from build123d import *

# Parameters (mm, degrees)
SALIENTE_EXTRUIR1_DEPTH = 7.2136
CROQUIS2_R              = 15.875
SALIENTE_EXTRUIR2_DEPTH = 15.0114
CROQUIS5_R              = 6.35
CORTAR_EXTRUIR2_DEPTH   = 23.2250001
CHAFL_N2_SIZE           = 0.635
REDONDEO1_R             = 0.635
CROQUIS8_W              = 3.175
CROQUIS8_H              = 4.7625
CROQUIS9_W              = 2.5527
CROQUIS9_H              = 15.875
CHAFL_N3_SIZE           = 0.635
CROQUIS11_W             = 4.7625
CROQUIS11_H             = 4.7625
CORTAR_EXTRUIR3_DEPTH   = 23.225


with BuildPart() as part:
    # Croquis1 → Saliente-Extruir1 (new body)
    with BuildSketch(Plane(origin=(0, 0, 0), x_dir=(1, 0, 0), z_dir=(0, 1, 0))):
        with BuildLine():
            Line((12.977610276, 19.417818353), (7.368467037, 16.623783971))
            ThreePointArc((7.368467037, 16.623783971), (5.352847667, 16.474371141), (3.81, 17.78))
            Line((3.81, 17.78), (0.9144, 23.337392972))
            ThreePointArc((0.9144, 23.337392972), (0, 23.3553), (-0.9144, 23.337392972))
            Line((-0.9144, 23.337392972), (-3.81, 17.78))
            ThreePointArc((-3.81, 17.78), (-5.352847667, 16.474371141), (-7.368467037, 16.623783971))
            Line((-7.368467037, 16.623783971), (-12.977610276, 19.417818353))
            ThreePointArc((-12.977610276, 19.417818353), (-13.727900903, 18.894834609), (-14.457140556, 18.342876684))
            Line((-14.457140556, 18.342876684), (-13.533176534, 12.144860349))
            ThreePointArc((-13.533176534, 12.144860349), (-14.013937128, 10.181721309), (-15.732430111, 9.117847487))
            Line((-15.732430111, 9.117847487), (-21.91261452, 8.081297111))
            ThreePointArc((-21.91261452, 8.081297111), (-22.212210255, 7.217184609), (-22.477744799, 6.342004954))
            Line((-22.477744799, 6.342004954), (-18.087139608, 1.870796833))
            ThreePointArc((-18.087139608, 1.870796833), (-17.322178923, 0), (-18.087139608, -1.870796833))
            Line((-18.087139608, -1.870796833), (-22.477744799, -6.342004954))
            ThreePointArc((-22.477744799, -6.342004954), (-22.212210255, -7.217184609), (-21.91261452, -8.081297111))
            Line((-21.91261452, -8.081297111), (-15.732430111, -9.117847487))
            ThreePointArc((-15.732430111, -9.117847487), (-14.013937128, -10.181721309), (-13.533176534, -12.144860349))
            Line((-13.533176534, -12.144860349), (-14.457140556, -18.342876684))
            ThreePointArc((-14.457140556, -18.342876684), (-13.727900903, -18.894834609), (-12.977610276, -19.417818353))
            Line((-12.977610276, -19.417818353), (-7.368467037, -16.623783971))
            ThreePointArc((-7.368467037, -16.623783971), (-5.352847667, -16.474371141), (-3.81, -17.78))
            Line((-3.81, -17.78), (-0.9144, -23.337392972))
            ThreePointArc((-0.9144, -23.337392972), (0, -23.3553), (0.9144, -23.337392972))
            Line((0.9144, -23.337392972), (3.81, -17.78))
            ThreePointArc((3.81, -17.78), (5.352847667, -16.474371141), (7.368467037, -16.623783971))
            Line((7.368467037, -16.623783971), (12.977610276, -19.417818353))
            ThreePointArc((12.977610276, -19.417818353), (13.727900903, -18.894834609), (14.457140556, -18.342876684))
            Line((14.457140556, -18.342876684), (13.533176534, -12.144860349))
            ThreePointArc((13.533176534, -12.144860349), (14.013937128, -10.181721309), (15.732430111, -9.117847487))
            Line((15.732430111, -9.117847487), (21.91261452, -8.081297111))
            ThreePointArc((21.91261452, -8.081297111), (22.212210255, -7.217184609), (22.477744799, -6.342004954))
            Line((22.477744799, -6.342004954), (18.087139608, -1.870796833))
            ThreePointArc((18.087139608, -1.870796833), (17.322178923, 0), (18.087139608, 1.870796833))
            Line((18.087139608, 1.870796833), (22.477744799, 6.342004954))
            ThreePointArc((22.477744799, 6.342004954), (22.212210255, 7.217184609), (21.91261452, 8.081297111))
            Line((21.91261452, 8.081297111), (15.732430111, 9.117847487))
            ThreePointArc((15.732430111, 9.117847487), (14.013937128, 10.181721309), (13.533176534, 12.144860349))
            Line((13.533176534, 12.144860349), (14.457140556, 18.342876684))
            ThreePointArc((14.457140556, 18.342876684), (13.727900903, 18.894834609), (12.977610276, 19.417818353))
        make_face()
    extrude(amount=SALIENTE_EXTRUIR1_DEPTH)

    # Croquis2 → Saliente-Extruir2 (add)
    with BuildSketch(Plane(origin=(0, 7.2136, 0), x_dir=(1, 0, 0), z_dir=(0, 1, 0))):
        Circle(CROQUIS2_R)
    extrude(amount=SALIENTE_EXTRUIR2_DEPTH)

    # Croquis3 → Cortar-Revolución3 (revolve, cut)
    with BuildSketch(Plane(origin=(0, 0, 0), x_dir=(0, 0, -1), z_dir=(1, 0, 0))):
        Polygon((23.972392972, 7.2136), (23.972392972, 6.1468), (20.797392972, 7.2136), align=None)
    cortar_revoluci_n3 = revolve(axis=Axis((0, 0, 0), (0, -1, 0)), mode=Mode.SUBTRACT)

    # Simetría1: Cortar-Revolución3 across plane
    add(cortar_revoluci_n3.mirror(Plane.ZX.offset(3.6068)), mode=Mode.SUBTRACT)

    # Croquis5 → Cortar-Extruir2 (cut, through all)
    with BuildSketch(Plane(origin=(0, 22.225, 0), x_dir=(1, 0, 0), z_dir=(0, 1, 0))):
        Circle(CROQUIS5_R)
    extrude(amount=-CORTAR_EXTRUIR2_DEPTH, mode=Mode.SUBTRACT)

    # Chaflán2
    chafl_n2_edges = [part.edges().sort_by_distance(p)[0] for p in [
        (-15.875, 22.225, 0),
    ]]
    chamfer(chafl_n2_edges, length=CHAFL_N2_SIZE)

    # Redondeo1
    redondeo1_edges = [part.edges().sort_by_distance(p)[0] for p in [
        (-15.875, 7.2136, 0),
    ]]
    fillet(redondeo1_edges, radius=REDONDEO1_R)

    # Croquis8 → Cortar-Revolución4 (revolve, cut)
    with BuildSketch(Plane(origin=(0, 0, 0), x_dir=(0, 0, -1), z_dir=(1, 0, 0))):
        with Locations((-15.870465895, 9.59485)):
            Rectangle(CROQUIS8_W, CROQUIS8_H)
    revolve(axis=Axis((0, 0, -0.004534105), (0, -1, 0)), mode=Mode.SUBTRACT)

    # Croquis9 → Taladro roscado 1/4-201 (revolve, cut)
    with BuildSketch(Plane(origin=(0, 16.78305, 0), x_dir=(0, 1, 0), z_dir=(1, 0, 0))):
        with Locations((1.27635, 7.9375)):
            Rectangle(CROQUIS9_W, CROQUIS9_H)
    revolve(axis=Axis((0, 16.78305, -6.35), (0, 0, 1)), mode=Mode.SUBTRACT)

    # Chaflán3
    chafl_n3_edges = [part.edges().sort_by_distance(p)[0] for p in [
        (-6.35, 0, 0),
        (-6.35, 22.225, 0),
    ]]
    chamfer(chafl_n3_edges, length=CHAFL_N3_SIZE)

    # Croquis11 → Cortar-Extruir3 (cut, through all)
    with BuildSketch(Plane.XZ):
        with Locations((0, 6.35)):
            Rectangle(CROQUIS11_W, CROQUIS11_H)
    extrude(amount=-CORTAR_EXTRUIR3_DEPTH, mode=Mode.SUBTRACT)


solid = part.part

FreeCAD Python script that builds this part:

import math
import FreeCAD as App
import Part
import Sketcher

V = App.Vector
Q = App.Units.Quantity


def edges_at(feature, points):
    """Names of the edges that pass closest to the given points."""
    edges = feature.Shape.Edges
    near = lambda p: min(range(len(edges)), key=lambda i: edges[i].distToShape(Part.Vertex(*p))[0])
    return sorted({f"Edge{near(p) + 1}" for p in points})


def add_polygon(sketch, points):
    """Adds a closed chain of lines whose ends are joined by coincident constraints."""
    first, n = sketch.GeometryCount, len(points)
    for a, b in zip(points, points[1:] + points[:1]):
        sketch.addGeometry(Part.LineSegment(App.Vector(*a, 0), App.Vector(*b, 0)), False)
    for i in range(n):
        sketch.addConstraint(Sketcher.Constraint("Coincident", first + i, 2, first + (i + 1) % n, 1))

doc = App.newDocument("Part")
body = doc.addObject("PartDesign::Body", "Body")

sketch1 = body.newObject("Sketcher::SketchObject", "Sketch")
sketch1.AttachmentSupport = (doc.getObject("XZ_Plane"), [""])
sketch1.MapMode = "FlatFace"
sketch1.addGeometry([
    Part.LineSegment(V(13, -19.4, 0), V(7.4, -16.6, 0)),
    Part.ArcOfCircle(Part.Circle(V(6.2, -19, 0), V(0, 0, 1), 2.7), math.radians(64), math.radians(152)),
    Part.LineSegment(V(3.8, -17.8, 0), V(0.9, -23.3, 0)),
    Part.ArcOfCircle(Part.Circle(V(0, 0, 0), V(0, 0, 1), 23.4), math.radians(-92.24), math.radians(-87.76)),
    Part.LineSegment(V(-0.9, -23.3, 0), V(-3.8, -17.8, 0)),
    Part.ArcOfCircle(Part.Circle(V(-6.2, -19, 0), V(0, 0, 1), 2.7), math.radians(28), math.radians(116)),
    Part.LineSegment(V(-7.4, -16.6, 0), V(-13, -19.4, 0)),
    Part.ArcOfCircle(Part.Circle(V(0, 0, 0), V(0, 0, 1), 23.4), math.radians(-128.24), math.radians(-123.76)),
    Part.LineSegment(V(-14.5, -18.3, 0), V(-13.5, -12.1, 0)),
    Part.ArcOfCircle(Part.Circle(V(-16.2, -11.8, 0), V(0, 0, 1), 2.7), math.radians(-8), math.radians(80)),
    Part.LineSegment(V(-15.7, -9.1, 0), V(-21.9, -8.1, 0)),
    Part.ArcOfCircle(Part.Circle(V(0, 0, 0), V(0, 0, 1), 23.4), math.radians(-164.24), math.radians(-159.76)),
    Part.LineSegment(V(-22.5, -6.3, 0), V(-18.1, -1.9, 0)),
    Part.ArcOfCircle(Part.Circle(V(-20, 0, 0), V(0, 0, 1), 2.7), math.radians(-44), math.radians(44)),
    Part.LineSegment(V(-18.1, 1.9, 0), V(-22.5, 6.3, 0)),
    Part.ArcOfCircle(Part.Circle(V(0, 0, 0), V(0, 0, 1), 23.4), math.radians(159.76), math.radians(164.24)),
    Part.LineSegment(V(-21.9, 8.1, 0), V(-15.7, 9.1, 0)),
    Part.ArcOfCircle(Part.Circle(V(-16.2, 11.8, 0), V(0, 0, 1), 2.7), math.radians(-80), math.radians(8)),
    Part.LineSegment(V(-13.5, 12.1, 0), V(-14.5, 18.3, 0)),
    Part.ArcOfCircle(Part.Circle(V(0, 0, 0), V(0, 0, 1), 23.4), math.radians(123.76), math.radians(128.24)),
    Part.LineSegment(V(-13, 19.4, 0), V(-7.4, 16.6, 0)),
    Part.ArcOfCircle(Part.Circle(V(-6.2, 19, 0), V(0, 0, 1), 2.7), math.radians(-116), math.radians(-28)),
    Part.LineSegment(V(-3.8, 17.8, 0), V(-0.9, 23.3, 0)),
    Part.ArcOfCircle(Part.Circle(V(0, 0, 0), V(0, 0, 1), 23.4), math.radians(87.76), math.radians(92.24)),
    Part.LineSegment(V(0.9, 23.3, 0), V(3.8, 17.8, 0)),
    Part.ArcOfCircle(Part.Circle(V(6.2, 19, 0), V(0, 0, 1), 2.7), math.radians(-152), math.radians(-64)),
    Part.LineSegment(V(7.4, 16.6, 0), V(13, 19.4, 0)),
    Part.ArcOfCircle(Part.Circle(V(0, 0, 0), V(0, 0, 1), 23.4), math.radians(51.76), math.radians(56.24)),
    Part.LineSegment(V(14.5, 18.3, 0), V(13.5, 12.1, 0)),
    Part.ArcOfCircle(Part.Circle(V(16.2, 11.8, 0), V(0, 0, 1), 2.7), math.radians(172), math.radians(260)),
    Part.LineSegment(V(15.7, 9.1, 0), V(21.9, 8.1, 0)),
    Part.ArcOfCircle(Part.Circle(V(0, 0, 0), V(0, 0, 1), 23.4), math.radians(15.76), math.radians(20.24)),
    Part.LineSegment(V(22.5, 6.3, 0), V(18.1, 1.9, 0)),
    Part.ArcOfCircle(Part.Circle(V(20, 0, 0), V(0, 0, 1), 2.7), math.radians(136), math.radians(224)),
    Part.LineSegment(V(18.1, -1.9, 0), V(22.5, -6.3, 0)),
    Part.ArcOfCircle(Part.Circle(V(0, 0, 0), V(0, 0, 1), 23.4), math.radians(-20.24), math.radians(-15.76)),
    Part.LineSegment(V(21.9, -8.1, 0), V(15.7, -9.1, 0)),
    Part.ArcOfCircle(Part.Circle(V(16.2, -11.8, 0), V(0, 0, 1), 2.7), math.radians(100), math.radians(188)),
    Part.LineSegment(V(13.5, -12.1, 0), V(14.5, -18.3, 0)),
    Part.ArcOfCircle(Part.Circle(V(0, 0, 0), V(0, 0, 1), 23.4), math.radians(-56.24), math.radians(-51.76)),
], False)
sketch1.addConstraint([
    Sketcher.Constraint("Tangent", 0, 2, 1, 1),
    Sketcher.Constraint("Tangent", 1, 2, 2, 1),
    Sketcher.Constraint("Coincident", 2, 2, 3, 2),
    Sketcher.Constraint("Coincident", 3, 1, 4, 1),
    Sketcher.Constraint("Tangent", 4, 2, 5, 1),
    Sketcher.Constraint("Tangent", 5, 2, 6, 1),
    Sketcher.Constraint("Coincident", 6, 2, 7, 2),
    Sketcher.Constraint("Coincident", 7, 1, 8, 1),
    Sketcher.Constraint("Tangent", 8, 2, 9, 1),
    Sketcher.Constraint("Tangent", 9, 2, 10, 1),
    Sketcher.Constraint("Coincident", 10, 2, 11, 2),
    Sketcher.Constraint("Coincident", 11, 1, 12, 1),
    Sketcher.Constraint("Tangent", 12, 2, 13, 1),
    Sketcher.Constraint("Tangent", 13, 2, 14, 1),
    Sketcher.Constraint("Coincident", 14, 2, 15, 2),
    Sketcher.Constraint("Coincident", 15, 1, 16, 1),
    Sketcher.Constraint("Tangent", 16, 2, 17, 1),
    Sketcher.Constraint("Tangent", 17, 2, 18, 1),
    Sketcher.Constraint("Coincident", 18, 2, 19, 2),
    Sketcher.Constraint("Coincident", 19, 1, 20, 1),
    Sketcher.Constraint("Tangent", 20, 2, 21, 1),
    Sketcher.Constraint("Tangent", 21, 2, 22, 1),
    Sketcher.Constraint("Coincident", 22, 2, 23, 2),
    Sketcher.Constraint("Coincident", 23, 1, 24, 1),
    Sketcher.Constraint("Tangent", 24, 2, 25, 1),
    Sketcher.Constraint("Tangent", 25, 2, 26, 1),
    Sketcher.Constraint("Coincident", 26, 2, 27, 2),
    Sketcher.Constraint("Coincident", 27, 1, 28, 1),
    Sketcher.Constraint("Tangent", 28, 2, 29, 1),
    Sketcher.Constraint("Tangent", 29, 2, 30, 1),
    Sketcher.Constraint("Coincident", 30, 2, 31, 2),
    Sketcher.Constraint("Coincident", 31, 1, 32, 1),
    Sketcher.Constraint("Tangent", 32, 2, 33, 1),
    Sketcher.Constraint("Tangent", 33, 2, 34, 1),
    Sketcher.Constraint("Coincident", 34, 2, 35, 2),
    Sketcher.Constraint("Coincident", 35, 1, 36, 1),
    Sketcher.Constraint("Tangent", 36, 2, 37, 1),
    Sketcher.Constraint("Tangent", 37, 2, 38, 1),
    Sketcher.Constraint("Coincident", 38, 2, 39, 2),
    Sketcher.Constraint("Coincident", 39, 1, 0, 1),
    Sketcher.Constraint("Coincident", 3, 3, -1, 1),
    Sketcher.Constraint("Coincident", 7, 3, -1, 1),
    Sketcher.Constraint("Coincident", 11, 3, -1, 1),
    Sketcher.Constraint("Coincident", 15, 3, -1, 1),
    Sketcher.Constraint("Coincident", 19, 3, -1, 1),
    Sketcher.Constraint("Coincident", 23, 3, -1, 1),
    Sketcher.Constraint("Coincident", 27, 3, -1, 1),
    Sketcher.Constraint("Coincident", 31, 3, -1, 1),
    Sketcher.Constraint("Coincident", 35, 3, -1, 1),
    Sketcher.Constraint("Coincident", 39, 3, -1, 1),
    Sketcher.Constraint("Equal", 1, 5),
    Sketcher.Constraint("Equal", 3, 7),
    Sketcher.Constraint("Equal", 5, 9),
    Sketcher.Constraint("Equal", 7, 11),
    Sketcher.Constraint("Equal", 9, 13),
    Sketcher.Constraint("Equal", 11, 15),
    Sketcher.Constraint("Equal", 13, 17),
    Sketcher.Constraint("Equal", 15, 19),
    Sketcher.Constraint("Equal", 17, 21),
    Sketcher.Constraint("Equal", 19, 23),
    Sketcher.Constraint("Equal", 21, 25),
    Sketcher.Constraint("Equal", 23, 27),
    Sketcher.Constraint("Equal", 25, 29),
    Sketcher.Constraint("Equal", 27, 31),
    Sketcher.Constraint("Equal", 29, 33),
    Sketcher.Constraint("Equal", 31, 35),
    Sketcher.Constraint("Equal", 33, 37),
    Sketcher.Constraint("Equal", 35, 39),
    Sketcher.Constraint("Symmetric", 1, 3, 21, 3, -1, 1),
    Sketcher.Constraint("Symmetric", 5, 3, 25, 3, -1, 1),
    Sketcher.Constraint("Symmetric", 9, 3, 29, 3, -1, 1),
    Sketcher.Constraint("Symmetric", 13, 3, 33, 3, -1, 1),
    Sketcher.Constraint("Symmetric", 17, 3, 37, 3, -1, 1),
    Sketcher.Constraint("Symmetric", 1, 3, 5, 3, -2),
    Sketcher.Constraint("Symmetric", 17, 3, 29, 3, -2),
    Sketcher.Constraint("Symmetric", 13, 2, 32, 2, -2),
    Sketcher.Constraint("Parallel", 0, 20),
    Sketcher.Constraint("Parallel", 2, 22),
    Sketcher.Constraint("Parallel", 4, 24),
    Sketcher.Constraint("Parallel", 6, 26),
    Sketcher.Constraint("Parallel", 8, 28),
    Sketcher.Constraint("Parallel", 10, 30),
    Sketcher.Constraint("Parallel", 12, 32),
    Sketcher.Constraint("Parallel", 14, 34),
    Sketcher.Constraint("Parallel", 16, 36),
    Sketcher.Constraint("Parallel", 18, 38),
    Sketcher.Constraint("Horizontal", 2, 2, 3, 1),
    Sketcher.Constraint("Horizontal", 0, 2, 5, 2),
    Sketcher.Constraint("Horizontal", 18, 2, 27, 1),
    Sketcher.Constraint("Horizontal", 16, 2, 29, 2),
    Sketcher.Constraint("Equal", 0, 2),
    Sketcher.Constraint("Equal", 6, 8),
    Sketcher.Constraint("Equal", 8, 10),
    Sketcher.Constraint("Equal", 10, 12),
    Sketcher.Constraint("DistanceY", 1, 2, -1, 1, Q("0.7 in")),
    Sketcher.Constraint("Radius", 3, Q("0.9195 in")),
    Sketcher.Constraint("DistanceX", 4, 2, 1, 2, Q("0.3 in")),
    Sketcher.Constraint("Radius", 1, Q("2.670102 mm")),
    Sketcher.Constraint("DistanceX", -1, 1, 2, 2, Q("0.036 in")),
    Sketcher.Constraint("DistanceY", 10, 2, 12, 2, Q("6.2105 mm")),
    Sketcher.Constraint("DistanceY", 12, 2, 14, 2, Q("8.212802 mm")),
    Sketcher.Constraint("DistanceX", 7, 1, -1, 1, Q("14.457141 mm")),
])
pad1 = body.newObject("PartDesign::Pad", "Pad")
pad1.Profile = sketch1
pad1.Length = Q("0.284 in")
pad1.Reversed = True

sketch2 = body.newObject("Sketcher::SketchObject", "Sketch001")
sketch2.AttachmentSupport = (doc.getObject("XZ_Plane"), [""])
sketch2.MapMode = "FlatFace"
sketch2.AttachmentOffset = App.Placement(V(0, 0, -0.284 * 25.4), App.Rotation())
sketch2.addGeometry(Part.Circle(V(0, 0, 0), V(0, 0, 1), 16), False)
sketch2.addConstraint([
    Sketcher.Constraint("Coincident", 0, 3, -1, 1),
    Sketcher.Constraint("Diameter", 0, Q("1.25 in")),
])
pad2 = body.newObject("PartDesign::Pad", "Pad001")
pad2.Profile = sketch2
pad2.Length = Q("0.591 in")
pad2.Reversed = True

sketch3 = body.newObject("Sketcher::SketchObject", "Sketch002")
sketch3.AttachmentSupport = (doc.getObject("YZ_Plane"), [""])
sketch3.MapMode = "FlatFace"
add_polygon(sketch3, [(6.1, -24), (7.2, -24), (7.2, -20.8)])
sketch3.addConstraint([
    Sketcher.Constraint("Horizontal", 0),
    Sketcher.Constraint("Vertical", 1),
    Sketcher.Constraint("DistanceX", 0, 1, 0, 2, Q("0.042 in")),
    Sketcher.Constraint("DistanceY", 1, 1, 1, 2, Q("0.125 in")),
    Sketcher.Constraint("DistanceX", -1, 1, 0, 2, Q("0.284 in")),
    Sketcher.Constraint("DistanceY", 0, 2, -1, 1, Q("23.972393 mm")),
])
groove = body.newObject("PartDesign::Groove", "Groove")
groove.Profile = sketch3
groove.ReferenceAxis = (sketch3, ["H_Axis"])
groove.Angle = 360
doc.recompute()

datumplane = body.newObject("PartDesign::Plane", "DatumPlane")
datumplane.AttachmentSupport = (doc.getObject("XZ_Plane"), [""])
datumplane.MapMode = "FlatFace"
datumplane.AttachmentOffset = App.Placement(V(0, 0, -0.142 * 25.4), App.Rotation())
mirrored = body.newObject("PartDesign::Mirrored", "Mirrored")
mirrored.Originals = [groove]
mirrored.MirrorPlane = (datumplane, [""])
body.Tip = mirrored

sketch4 = body.newObject("Sketcher::SketchObject", "Sketch003")
sketch4.AttachmentSupport = (doc.getObject("XZ_Plane"), [""])
sketch4.MapMode = "FlatFace"
sketch4.AttachmentOffset = App.Placement(V(0, 0, -0.875 * 25.4), App.Rotation())
sketch4.addGeometry(Part.Circle(V(0, 0, 0), V(0, 0, 1), 6), False)
sketch4.addConstraint([
    Sketcher.Constraint("Coincident", 0, 3, -1, 1),
    Sketcher.Constraint("Diameter", 0, Q("0.5 in")),
])
pocket1 = body.newObject("PartDesign::Pocket", "Pocket")
pocket1.Profile = sketch4
pocket1.Type = "ThroughAll"
pocket1.Reversed = True
doc.recompute()

chamfer = body.newObject("PartDesign::Chamfer", "Chamfer")
chamfer.Base = (pocket1, edges_at(pocket1, [(-15.875, 22.225, 0)]))
chamfer.Size = Q("0.025 in")
doc.recompute()

fillet = body.newObject("PartDesign::Fillet", "Fillet")
fillet.Base = (chamfer, edges_at(chamfer, [(-15.875, 7.214, 0)]))
fillet.Radius = Q("0.025 in")

sketch5 = body.newObject("Sketcher::SketchObject", "Sketch004")
sketch5.AttachmentSupport = (doc.getObject("YZ_Plane"), [""])
sketch5.MapMode = "FlatFace"
add_polygon(sketch5, [(12, 17.5), (7.2, 17.5), (7.2, 14.3), (12, 14.3)])
sketch5.addGeometry(Part.LineSegment(V(12, 0, 0), V(7.2, 0, 0)), True)
sketch5.addConstraint([
    Sketcher.Constraint("Horizontal", 0),
    Sketcher.Constraint("Vertical", 1),
    Sketcher.Constraint("Horizontal", 2),
    Sketcher.Constraint("Vertical", 3),
    Sketcher.Constraint("Horizontal", 4),
    Sketcher.Constraint("Vertical", 3, 2, 4, 1),
    Sketcher.Constraint("Vertical", 1, 2, 4, 2),
    Sketcher.Constraint("DistanceX", 0, 2, 0, 1, Q("0.1875 in")),
    Sketcher.Constraint("DistanceY", 1, 2, 1, 1, Q("0.125 in")),
    Sketcher.Constraint("DistanceX", -1, 1, 0, 2, Q("0.284 in")),
    Sketcher.Constraint("DistanceY", 4, 1, 2, 2, Q("0.5625 in")),
    Sketcher.Constraint("DistanceY", -1, 1, 0, 2, Q("17.457966 mm")),
])
groove2 = body.newObject("PartDesign::Groove", "Groove001")
groove2.Profile = sketch5
groove2.ReferenceAxis = (sketch5, ["Axis0"])
groove2.Angle = 360

sketch6 = body.newObject("Sketcher::SketchObject", "Sketch005")
sketch6.AttachmentSupport = (doc.getObject("YZ_Plane"), [""])
sketch6.MapMode = "FlatFace"
add_polygon(sketch6, [(16.8, 15.9), (16.8, 0), (19.3, 0), (19.3, 15.9)])
sketch6.addGeometry(Part.LineSegment(V(16.8, 0, 0), V(16.8, 15.9, 0)), True)
sketch6.addConstraint([
    Sketcher.Constraint("Vertical", 0),
    Sketcher.Constraint("Horizontal", 1),
    Sketcher.Constraint("Vertical", 2),
    Sketcher.Constraint("Horizontal", 3),
    Sketcher.Constraint("Vertical", 4),
    Sketcher.Constraint("Coincident", 4, 1, 0, 2),
    Sketcher.Constraint("PointOnObject", 0, 2, -1),
    Sketcher.Constraint("Horizontal", 2, 2, 4, 2),
    Sketcher.Constraint("DistanceY", 0, 2, 0, 1, Q("0.625 in")),
    Sketcher.Constraint("DistanceX", 1, 1, 1, 2, Q("0.1005 in")),
    Sketcher.Constraint("DistanceX", -1, 1, 0, 2, Q("16.78305 mm")),
])
groove3 = body.newObject("PartDesign::Groove", "Groove002")
groove3.Profile = sketch6
groove3.ReferenceAxis = (sketch6, ["Axis0"])
groove3.Angle = 360
doc.recompute()

chamfer2 = body.newObject("PartDesign::Chamfer", "Chamfer001")
chamfer2.Base = (groove3, edges_at(groove3, [(-6.35, 0, 0), (-6.35, 22.225, 0)]))
chamfer2.Size = Q("0.025 in")

sketch7 = body.newObject("Sketcher::SketchObject", "Sketch006")
sketch7.AttachmentSupport = (doc.getObject("XZ_Plane"), [""])
sketch7.MapMode = "FlatFace"
add_polygon(sketch7, [(-2.4, 8.7), (-2.4, 4), (2.4, 4), (2.4, 8.7)])
sketch7.addConstraint([
    Sketcher.Constraint("Vertical", 0),
    Sketcher.Constraint("Horizontal", 1),
    Sketcher.Constraint("Vertical", 2),
    Sketcher.Constraint("Horizontal", 3),
    Sketcher.Constraint("Equal", 3, 0),
    Sketcher.Constraint("DistanceX", 1, 1, 1, 2, Q("0.1875 in")),
    Sketcher.Constraint("DistanceX", 0, 2, -1, 1, Q("0.09375 in")),
    Sketcher.Constraint("DistanceY", -1, 1, 0, 2, Q("0.15625 in")),
])
pocket2 = body.newObject("PartDesign::Pocket", "Pocket001")
pocket2.Profile = sketch7
pocket2.Type = "ThroughAll"

doc.recompute()
